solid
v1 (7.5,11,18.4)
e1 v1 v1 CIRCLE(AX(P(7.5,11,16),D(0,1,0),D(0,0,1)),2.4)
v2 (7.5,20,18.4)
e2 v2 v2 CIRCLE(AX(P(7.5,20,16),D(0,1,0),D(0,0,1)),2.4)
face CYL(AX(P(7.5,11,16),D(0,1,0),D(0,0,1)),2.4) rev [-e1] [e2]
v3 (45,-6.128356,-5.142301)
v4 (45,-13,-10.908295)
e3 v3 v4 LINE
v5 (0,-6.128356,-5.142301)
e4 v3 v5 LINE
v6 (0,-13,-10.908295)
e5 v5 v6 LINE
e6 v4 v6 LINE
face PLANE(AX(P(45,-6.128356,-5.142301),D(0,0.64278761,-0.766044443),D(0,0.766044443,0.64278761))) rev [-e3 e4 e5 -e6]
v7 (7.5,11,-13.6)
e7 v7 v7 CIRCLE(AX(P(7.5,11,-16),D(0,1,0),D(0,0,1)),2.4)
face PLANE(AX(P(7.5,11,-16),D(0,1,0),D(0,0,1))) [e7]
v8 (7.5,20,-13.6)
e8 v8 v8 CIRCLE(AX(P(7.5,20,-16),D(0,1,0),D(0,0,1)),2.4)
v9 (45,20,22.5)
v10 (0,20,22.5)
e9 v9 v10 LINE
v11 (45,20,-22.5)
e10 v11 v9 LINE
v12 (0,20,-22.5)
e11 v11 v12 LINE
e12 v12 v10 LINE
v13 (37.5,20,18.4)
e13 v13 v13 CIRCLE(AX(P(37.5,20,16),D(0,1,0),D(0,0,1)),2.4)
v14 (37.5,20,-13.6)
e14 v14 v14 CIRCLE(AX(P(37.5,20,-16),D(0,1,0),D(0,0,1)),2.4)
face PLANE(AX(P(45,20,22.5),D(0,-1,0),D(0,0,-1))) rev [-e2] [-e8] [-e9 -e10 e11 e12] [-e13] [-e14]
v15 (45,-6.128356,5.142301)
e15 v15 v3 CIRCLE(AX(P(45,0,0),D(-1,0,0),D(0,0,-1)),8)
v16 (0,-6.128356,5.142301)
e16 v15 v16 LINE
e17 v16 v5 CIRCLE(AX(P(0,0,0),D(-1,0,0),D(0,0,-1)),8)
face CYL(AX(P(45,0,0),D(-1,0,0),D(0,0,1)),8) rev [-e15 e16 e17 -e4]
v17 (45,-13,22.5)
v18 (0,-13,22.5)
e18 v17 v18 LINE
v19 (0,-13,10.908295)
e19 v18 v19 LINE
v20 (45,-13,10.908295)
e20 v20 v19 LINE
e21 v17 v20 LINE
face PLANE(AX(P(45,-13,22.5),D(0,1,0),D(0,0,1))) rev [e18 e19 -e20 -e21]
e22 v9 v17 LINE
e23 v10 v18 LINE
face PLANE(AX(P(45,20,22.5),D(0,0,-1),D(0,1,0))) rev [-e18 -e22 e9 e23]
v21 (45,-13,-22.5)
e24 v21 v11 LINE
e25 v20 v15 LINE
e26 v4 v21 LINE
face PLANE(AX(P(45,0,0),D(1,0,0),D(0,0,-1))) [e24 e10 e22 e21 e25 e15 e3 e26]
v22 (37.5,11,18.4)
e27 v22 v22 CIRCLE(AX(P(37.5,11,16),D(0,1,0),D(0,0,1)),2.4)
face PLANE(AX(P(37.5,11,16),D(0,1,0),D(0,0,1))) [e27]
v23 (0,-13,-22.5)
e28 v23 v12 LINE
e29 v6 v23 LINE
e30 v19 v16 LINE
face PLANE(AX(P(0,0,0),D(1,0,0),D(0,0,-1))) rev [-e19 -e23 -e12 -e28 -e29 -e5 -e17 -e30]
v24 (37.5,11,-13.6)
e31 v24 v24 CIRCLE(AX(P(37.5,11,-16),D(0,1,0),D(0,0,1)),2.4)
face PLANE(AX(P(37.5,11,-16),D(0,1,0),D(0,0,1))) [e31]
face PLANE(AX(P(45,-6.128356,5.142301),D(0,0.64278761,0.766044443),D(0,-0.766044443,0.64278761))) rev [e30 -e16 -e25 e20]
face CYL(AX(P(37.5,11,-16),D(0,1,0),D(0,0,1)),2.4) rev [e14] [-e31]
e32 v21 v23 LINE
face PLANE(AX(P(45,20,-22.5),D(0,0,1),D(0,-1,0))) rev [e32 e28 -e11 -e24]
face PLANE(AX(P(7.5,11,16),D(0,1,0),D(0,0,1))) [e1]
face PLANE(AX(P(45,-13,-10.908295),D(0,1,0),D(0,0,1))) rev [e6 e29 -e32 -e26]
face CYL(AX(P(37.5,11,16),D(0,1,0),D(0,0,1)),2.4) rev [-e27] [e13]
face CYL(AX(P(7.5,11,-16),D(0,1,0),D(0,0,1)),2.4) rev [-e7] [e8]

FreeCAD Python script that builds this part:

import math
import FreeCAD as App
import Part
import Sketcher
from FreeCAD import Vector
Q = App.Units.Quantity

doc = App.newDocument("Part")
params = doc.addObject("Spreadsheet::Sheet", "Params")
for row, (alias, value) in enumerate([
    ("sketch1_radius", "8 mm"),
    ("sketch1_width", "33 mm"),
    ("sketch1_height", "45 mm"),
    ("pad1_length", "45 mm"),
    ("sketch2_diameter", "4.8 mm"),
    ("pocket1_length", "9 mm"),
], start=1):
    params.set(f"A{row}", alias)
    params.set(f"B{row}", "=" + value)
    params.setAlias(f"B{row}", alias)

body = doc.addObject("PartDesign::Body", "Body")

sketch1 = body.newObject("Sketcher::SketchObject", "Sketch")
sketch1.AttachmentSupport = (doc.getObject("YZ_Plane"), [""])
sketch1.MapMode = "FlatFace"
sketch1.addGeometry(Part.LineSegment(Vector(20, -22, 0), Vector(20, 22, 0)), False)
sketch1.addGeometry(Part.LineSegment(Vector(20, 22, 0), Vector(-13, 22, 0)), False)
sketch1.addGeometry(Part.LineSegment(Vector(-13, 22, 0), Vector(-13, 11, 0)), False)
sketch1.addGeometry(Part.LineSegment(Vector(-13, 11, 0), Vector(-6, 5, 0)), False)
sketch1.addGeometry(Part.ArcOfCircle(Part.Circle(Vector(0, 0, 0), Vector(0, 0, 1), 8), math.radians(-140), math.radians(140)), False)
sketch1.addGeometry(Part.LineSegment(Vector(-6, -5, 0), Vector(-13, -11, 0)), False)
sketch1.addGeometry(Part.LineSegment(Vector(-13, -11, 0), Vector(-13, -22, 0)), False)
sketch1.addGeometry(Part.LineSegment(Vector(-13, -22, 0), Vector(20, -22, 0)), False)
sketch1.addConstraint(Sketcher.Constraint("Coincident", 0, 2, 1, 1))
sketch1.addConstraint(Sketcher.Constraint("Coincident", 1, 2, 2, 1))
sketch1.addConstraint(Sketcher.Constraint("Coincident", 2, 2, 3, 1))
sketch1.addConstraint(Sketcher.Constraint("Coincident", 3, 2, 4, 2))
sketch1.addConstraint(Sketcher.Constraint("Coincident", 4, 1, 5, 1))
sketch1.addConstraint(Sketcher.Constraint("Coincident", 5, 2, 6, 1))
sketch1.addConstraint(Sketcher.Constraint("Coincident", 6, 2, 7, 1))
sketch1.addConstraint(Sketcher.Constraint("Coincident", 7, 2, 0, 1))
sketch1.addConstraint(Sketcher.Constraint("Vertical", 0))
sketch1.addConstraint(Sketcher.Constraint("Horizontal", 1))
sketch1.addConstraint(Sketcher.Constraint("Vertical", 2))
sketch1.addConstraint(Sketcher.Constraint("Vertical", 6))
sketch1.addConstraint(Sketcher.Constraint("Horizontal", 7))
sketch1.addConstraint(Sketcher.Constraint("Coincident", 4, 3, -1, 1))
sketch1.addConstraint(Sketcher.Constraint("Symmetric", 2, 2, 5, 2, -1))
sketch1.addConstraint(Sketcher.Constraint("Vertical", 3, 2, 4, 1))
sketch1.addConstraint(Sketcher.Constraint("Equal", 2, 6))
sketch1.addConstraint(Sketcher.Constraint("Radius", 4, Q("8 mm")))
sketch1.addConstraint(Sketcher.Constraint("DistanceX", 1, 2, 1, 1, Q("33 mm")))
sketch1.addConstraint(Sketcher.Constraint("DistanceY", 0, 1, 0, 2, Q("45 mm")))
sketch1.addConstraint(Sketcher.Constraint("Angle", 3, Q("-40 deg")))
sketch1.addConstraint(Sketcher.Constraint("DistanceX", -1, 1, 0, 2, Q("20 mm")))
sketch1.addConstraint(Sketcher.Constraint("DistanceY", -1, 1, 3, 2, Q("5.142301 mm")))
sketch1.setExpression("Constraints[17]", "Params.sketch1_radius")
sketch1.setExpression("Constraints[18]", "Params.sketch1_width")
sketch1.setExpression("Constraints[19]", "Params.sketch1_height")
pad1 = body.newObject("PartDesign::Pad", "Pad")
pad1.Profile = sketch1
pad1.setExpression("Length", "Params.pad1_length")

sketch2 = body.newObject("Sketcher::SketchObject", "Sketch001")
sketch2.AttachmentSupport = (doc.getObject("XZ_Plane"), [""])
sketch2.MapMode = "FlatFace"
sketch2.AttachmentOffset = App.Placement(Vector(0, 0, -20), App.Rotation())
sketch2.addGeometry(Part.Circle(Vector(7.5, -16, 0), Vector(0, 0, 1), 2.4), False)
sketch2.addGeometry(Part.Circle(Vector(37.5, -16, 0), Vector(0, 0, 1), 2.4), False)
sketch2.addGeometry(Part.Circle(Vector(37.5, 16, 0), Vector(0, 0, 1), 2.4), False)
sketch2.addGeometry(Part.Circle(Vector(7.5, 16, 0), Vector(0, 0, 1), 2.4), False)
sketch2.addConstraint(Sketcher.Constraint("Equal", 0, 1))
sketch2.addConstraint(Sketcher.Constraint("Equal", 1, 2))
sketch2.addConstraint(Sketcher.Constraint("Equal", 2, 3))
sketch2.addConstraint(Sketcher.Constraint("Symmetric", 1, 3, 2, 3, -1))
sketch2.addConstraint(Sketcher.Constraint("Symmetric", 0, 3, 3, 3, -1))
sketch2.addConstraint(Sketcher.Constraint("Horizontal", 0, 3, 1, 3))
sketch2.addConstraint(Sketcher.Constraint("Diameter", 0, Q("4.8 mm")))
sketch2.addConstraint(Sketcher.Constraint("DistanceY", 0, 3, -1, 1, Q("16 mm")))
sketch2.addConstraint(Sketcher.Constraint("DistanceX", 0, 3, 1, 3, Q("30 mm")))
sketch2.addConstraint(Sketcher.Constraint("DistanceX", -1, 1, 0, 3, Q("7.5 mm")))
sketch2.setExpression("Constraints[6]", "Params.sketch2_diameter")
pocket1 = body.newObject("PartDesign::Pocket", "Pocket")
pocket1.Profile = sketch2
pocket1.setExpression("Length", "Params.pocket1_length")
pocket1.Reversed = True

doc.recompute()
